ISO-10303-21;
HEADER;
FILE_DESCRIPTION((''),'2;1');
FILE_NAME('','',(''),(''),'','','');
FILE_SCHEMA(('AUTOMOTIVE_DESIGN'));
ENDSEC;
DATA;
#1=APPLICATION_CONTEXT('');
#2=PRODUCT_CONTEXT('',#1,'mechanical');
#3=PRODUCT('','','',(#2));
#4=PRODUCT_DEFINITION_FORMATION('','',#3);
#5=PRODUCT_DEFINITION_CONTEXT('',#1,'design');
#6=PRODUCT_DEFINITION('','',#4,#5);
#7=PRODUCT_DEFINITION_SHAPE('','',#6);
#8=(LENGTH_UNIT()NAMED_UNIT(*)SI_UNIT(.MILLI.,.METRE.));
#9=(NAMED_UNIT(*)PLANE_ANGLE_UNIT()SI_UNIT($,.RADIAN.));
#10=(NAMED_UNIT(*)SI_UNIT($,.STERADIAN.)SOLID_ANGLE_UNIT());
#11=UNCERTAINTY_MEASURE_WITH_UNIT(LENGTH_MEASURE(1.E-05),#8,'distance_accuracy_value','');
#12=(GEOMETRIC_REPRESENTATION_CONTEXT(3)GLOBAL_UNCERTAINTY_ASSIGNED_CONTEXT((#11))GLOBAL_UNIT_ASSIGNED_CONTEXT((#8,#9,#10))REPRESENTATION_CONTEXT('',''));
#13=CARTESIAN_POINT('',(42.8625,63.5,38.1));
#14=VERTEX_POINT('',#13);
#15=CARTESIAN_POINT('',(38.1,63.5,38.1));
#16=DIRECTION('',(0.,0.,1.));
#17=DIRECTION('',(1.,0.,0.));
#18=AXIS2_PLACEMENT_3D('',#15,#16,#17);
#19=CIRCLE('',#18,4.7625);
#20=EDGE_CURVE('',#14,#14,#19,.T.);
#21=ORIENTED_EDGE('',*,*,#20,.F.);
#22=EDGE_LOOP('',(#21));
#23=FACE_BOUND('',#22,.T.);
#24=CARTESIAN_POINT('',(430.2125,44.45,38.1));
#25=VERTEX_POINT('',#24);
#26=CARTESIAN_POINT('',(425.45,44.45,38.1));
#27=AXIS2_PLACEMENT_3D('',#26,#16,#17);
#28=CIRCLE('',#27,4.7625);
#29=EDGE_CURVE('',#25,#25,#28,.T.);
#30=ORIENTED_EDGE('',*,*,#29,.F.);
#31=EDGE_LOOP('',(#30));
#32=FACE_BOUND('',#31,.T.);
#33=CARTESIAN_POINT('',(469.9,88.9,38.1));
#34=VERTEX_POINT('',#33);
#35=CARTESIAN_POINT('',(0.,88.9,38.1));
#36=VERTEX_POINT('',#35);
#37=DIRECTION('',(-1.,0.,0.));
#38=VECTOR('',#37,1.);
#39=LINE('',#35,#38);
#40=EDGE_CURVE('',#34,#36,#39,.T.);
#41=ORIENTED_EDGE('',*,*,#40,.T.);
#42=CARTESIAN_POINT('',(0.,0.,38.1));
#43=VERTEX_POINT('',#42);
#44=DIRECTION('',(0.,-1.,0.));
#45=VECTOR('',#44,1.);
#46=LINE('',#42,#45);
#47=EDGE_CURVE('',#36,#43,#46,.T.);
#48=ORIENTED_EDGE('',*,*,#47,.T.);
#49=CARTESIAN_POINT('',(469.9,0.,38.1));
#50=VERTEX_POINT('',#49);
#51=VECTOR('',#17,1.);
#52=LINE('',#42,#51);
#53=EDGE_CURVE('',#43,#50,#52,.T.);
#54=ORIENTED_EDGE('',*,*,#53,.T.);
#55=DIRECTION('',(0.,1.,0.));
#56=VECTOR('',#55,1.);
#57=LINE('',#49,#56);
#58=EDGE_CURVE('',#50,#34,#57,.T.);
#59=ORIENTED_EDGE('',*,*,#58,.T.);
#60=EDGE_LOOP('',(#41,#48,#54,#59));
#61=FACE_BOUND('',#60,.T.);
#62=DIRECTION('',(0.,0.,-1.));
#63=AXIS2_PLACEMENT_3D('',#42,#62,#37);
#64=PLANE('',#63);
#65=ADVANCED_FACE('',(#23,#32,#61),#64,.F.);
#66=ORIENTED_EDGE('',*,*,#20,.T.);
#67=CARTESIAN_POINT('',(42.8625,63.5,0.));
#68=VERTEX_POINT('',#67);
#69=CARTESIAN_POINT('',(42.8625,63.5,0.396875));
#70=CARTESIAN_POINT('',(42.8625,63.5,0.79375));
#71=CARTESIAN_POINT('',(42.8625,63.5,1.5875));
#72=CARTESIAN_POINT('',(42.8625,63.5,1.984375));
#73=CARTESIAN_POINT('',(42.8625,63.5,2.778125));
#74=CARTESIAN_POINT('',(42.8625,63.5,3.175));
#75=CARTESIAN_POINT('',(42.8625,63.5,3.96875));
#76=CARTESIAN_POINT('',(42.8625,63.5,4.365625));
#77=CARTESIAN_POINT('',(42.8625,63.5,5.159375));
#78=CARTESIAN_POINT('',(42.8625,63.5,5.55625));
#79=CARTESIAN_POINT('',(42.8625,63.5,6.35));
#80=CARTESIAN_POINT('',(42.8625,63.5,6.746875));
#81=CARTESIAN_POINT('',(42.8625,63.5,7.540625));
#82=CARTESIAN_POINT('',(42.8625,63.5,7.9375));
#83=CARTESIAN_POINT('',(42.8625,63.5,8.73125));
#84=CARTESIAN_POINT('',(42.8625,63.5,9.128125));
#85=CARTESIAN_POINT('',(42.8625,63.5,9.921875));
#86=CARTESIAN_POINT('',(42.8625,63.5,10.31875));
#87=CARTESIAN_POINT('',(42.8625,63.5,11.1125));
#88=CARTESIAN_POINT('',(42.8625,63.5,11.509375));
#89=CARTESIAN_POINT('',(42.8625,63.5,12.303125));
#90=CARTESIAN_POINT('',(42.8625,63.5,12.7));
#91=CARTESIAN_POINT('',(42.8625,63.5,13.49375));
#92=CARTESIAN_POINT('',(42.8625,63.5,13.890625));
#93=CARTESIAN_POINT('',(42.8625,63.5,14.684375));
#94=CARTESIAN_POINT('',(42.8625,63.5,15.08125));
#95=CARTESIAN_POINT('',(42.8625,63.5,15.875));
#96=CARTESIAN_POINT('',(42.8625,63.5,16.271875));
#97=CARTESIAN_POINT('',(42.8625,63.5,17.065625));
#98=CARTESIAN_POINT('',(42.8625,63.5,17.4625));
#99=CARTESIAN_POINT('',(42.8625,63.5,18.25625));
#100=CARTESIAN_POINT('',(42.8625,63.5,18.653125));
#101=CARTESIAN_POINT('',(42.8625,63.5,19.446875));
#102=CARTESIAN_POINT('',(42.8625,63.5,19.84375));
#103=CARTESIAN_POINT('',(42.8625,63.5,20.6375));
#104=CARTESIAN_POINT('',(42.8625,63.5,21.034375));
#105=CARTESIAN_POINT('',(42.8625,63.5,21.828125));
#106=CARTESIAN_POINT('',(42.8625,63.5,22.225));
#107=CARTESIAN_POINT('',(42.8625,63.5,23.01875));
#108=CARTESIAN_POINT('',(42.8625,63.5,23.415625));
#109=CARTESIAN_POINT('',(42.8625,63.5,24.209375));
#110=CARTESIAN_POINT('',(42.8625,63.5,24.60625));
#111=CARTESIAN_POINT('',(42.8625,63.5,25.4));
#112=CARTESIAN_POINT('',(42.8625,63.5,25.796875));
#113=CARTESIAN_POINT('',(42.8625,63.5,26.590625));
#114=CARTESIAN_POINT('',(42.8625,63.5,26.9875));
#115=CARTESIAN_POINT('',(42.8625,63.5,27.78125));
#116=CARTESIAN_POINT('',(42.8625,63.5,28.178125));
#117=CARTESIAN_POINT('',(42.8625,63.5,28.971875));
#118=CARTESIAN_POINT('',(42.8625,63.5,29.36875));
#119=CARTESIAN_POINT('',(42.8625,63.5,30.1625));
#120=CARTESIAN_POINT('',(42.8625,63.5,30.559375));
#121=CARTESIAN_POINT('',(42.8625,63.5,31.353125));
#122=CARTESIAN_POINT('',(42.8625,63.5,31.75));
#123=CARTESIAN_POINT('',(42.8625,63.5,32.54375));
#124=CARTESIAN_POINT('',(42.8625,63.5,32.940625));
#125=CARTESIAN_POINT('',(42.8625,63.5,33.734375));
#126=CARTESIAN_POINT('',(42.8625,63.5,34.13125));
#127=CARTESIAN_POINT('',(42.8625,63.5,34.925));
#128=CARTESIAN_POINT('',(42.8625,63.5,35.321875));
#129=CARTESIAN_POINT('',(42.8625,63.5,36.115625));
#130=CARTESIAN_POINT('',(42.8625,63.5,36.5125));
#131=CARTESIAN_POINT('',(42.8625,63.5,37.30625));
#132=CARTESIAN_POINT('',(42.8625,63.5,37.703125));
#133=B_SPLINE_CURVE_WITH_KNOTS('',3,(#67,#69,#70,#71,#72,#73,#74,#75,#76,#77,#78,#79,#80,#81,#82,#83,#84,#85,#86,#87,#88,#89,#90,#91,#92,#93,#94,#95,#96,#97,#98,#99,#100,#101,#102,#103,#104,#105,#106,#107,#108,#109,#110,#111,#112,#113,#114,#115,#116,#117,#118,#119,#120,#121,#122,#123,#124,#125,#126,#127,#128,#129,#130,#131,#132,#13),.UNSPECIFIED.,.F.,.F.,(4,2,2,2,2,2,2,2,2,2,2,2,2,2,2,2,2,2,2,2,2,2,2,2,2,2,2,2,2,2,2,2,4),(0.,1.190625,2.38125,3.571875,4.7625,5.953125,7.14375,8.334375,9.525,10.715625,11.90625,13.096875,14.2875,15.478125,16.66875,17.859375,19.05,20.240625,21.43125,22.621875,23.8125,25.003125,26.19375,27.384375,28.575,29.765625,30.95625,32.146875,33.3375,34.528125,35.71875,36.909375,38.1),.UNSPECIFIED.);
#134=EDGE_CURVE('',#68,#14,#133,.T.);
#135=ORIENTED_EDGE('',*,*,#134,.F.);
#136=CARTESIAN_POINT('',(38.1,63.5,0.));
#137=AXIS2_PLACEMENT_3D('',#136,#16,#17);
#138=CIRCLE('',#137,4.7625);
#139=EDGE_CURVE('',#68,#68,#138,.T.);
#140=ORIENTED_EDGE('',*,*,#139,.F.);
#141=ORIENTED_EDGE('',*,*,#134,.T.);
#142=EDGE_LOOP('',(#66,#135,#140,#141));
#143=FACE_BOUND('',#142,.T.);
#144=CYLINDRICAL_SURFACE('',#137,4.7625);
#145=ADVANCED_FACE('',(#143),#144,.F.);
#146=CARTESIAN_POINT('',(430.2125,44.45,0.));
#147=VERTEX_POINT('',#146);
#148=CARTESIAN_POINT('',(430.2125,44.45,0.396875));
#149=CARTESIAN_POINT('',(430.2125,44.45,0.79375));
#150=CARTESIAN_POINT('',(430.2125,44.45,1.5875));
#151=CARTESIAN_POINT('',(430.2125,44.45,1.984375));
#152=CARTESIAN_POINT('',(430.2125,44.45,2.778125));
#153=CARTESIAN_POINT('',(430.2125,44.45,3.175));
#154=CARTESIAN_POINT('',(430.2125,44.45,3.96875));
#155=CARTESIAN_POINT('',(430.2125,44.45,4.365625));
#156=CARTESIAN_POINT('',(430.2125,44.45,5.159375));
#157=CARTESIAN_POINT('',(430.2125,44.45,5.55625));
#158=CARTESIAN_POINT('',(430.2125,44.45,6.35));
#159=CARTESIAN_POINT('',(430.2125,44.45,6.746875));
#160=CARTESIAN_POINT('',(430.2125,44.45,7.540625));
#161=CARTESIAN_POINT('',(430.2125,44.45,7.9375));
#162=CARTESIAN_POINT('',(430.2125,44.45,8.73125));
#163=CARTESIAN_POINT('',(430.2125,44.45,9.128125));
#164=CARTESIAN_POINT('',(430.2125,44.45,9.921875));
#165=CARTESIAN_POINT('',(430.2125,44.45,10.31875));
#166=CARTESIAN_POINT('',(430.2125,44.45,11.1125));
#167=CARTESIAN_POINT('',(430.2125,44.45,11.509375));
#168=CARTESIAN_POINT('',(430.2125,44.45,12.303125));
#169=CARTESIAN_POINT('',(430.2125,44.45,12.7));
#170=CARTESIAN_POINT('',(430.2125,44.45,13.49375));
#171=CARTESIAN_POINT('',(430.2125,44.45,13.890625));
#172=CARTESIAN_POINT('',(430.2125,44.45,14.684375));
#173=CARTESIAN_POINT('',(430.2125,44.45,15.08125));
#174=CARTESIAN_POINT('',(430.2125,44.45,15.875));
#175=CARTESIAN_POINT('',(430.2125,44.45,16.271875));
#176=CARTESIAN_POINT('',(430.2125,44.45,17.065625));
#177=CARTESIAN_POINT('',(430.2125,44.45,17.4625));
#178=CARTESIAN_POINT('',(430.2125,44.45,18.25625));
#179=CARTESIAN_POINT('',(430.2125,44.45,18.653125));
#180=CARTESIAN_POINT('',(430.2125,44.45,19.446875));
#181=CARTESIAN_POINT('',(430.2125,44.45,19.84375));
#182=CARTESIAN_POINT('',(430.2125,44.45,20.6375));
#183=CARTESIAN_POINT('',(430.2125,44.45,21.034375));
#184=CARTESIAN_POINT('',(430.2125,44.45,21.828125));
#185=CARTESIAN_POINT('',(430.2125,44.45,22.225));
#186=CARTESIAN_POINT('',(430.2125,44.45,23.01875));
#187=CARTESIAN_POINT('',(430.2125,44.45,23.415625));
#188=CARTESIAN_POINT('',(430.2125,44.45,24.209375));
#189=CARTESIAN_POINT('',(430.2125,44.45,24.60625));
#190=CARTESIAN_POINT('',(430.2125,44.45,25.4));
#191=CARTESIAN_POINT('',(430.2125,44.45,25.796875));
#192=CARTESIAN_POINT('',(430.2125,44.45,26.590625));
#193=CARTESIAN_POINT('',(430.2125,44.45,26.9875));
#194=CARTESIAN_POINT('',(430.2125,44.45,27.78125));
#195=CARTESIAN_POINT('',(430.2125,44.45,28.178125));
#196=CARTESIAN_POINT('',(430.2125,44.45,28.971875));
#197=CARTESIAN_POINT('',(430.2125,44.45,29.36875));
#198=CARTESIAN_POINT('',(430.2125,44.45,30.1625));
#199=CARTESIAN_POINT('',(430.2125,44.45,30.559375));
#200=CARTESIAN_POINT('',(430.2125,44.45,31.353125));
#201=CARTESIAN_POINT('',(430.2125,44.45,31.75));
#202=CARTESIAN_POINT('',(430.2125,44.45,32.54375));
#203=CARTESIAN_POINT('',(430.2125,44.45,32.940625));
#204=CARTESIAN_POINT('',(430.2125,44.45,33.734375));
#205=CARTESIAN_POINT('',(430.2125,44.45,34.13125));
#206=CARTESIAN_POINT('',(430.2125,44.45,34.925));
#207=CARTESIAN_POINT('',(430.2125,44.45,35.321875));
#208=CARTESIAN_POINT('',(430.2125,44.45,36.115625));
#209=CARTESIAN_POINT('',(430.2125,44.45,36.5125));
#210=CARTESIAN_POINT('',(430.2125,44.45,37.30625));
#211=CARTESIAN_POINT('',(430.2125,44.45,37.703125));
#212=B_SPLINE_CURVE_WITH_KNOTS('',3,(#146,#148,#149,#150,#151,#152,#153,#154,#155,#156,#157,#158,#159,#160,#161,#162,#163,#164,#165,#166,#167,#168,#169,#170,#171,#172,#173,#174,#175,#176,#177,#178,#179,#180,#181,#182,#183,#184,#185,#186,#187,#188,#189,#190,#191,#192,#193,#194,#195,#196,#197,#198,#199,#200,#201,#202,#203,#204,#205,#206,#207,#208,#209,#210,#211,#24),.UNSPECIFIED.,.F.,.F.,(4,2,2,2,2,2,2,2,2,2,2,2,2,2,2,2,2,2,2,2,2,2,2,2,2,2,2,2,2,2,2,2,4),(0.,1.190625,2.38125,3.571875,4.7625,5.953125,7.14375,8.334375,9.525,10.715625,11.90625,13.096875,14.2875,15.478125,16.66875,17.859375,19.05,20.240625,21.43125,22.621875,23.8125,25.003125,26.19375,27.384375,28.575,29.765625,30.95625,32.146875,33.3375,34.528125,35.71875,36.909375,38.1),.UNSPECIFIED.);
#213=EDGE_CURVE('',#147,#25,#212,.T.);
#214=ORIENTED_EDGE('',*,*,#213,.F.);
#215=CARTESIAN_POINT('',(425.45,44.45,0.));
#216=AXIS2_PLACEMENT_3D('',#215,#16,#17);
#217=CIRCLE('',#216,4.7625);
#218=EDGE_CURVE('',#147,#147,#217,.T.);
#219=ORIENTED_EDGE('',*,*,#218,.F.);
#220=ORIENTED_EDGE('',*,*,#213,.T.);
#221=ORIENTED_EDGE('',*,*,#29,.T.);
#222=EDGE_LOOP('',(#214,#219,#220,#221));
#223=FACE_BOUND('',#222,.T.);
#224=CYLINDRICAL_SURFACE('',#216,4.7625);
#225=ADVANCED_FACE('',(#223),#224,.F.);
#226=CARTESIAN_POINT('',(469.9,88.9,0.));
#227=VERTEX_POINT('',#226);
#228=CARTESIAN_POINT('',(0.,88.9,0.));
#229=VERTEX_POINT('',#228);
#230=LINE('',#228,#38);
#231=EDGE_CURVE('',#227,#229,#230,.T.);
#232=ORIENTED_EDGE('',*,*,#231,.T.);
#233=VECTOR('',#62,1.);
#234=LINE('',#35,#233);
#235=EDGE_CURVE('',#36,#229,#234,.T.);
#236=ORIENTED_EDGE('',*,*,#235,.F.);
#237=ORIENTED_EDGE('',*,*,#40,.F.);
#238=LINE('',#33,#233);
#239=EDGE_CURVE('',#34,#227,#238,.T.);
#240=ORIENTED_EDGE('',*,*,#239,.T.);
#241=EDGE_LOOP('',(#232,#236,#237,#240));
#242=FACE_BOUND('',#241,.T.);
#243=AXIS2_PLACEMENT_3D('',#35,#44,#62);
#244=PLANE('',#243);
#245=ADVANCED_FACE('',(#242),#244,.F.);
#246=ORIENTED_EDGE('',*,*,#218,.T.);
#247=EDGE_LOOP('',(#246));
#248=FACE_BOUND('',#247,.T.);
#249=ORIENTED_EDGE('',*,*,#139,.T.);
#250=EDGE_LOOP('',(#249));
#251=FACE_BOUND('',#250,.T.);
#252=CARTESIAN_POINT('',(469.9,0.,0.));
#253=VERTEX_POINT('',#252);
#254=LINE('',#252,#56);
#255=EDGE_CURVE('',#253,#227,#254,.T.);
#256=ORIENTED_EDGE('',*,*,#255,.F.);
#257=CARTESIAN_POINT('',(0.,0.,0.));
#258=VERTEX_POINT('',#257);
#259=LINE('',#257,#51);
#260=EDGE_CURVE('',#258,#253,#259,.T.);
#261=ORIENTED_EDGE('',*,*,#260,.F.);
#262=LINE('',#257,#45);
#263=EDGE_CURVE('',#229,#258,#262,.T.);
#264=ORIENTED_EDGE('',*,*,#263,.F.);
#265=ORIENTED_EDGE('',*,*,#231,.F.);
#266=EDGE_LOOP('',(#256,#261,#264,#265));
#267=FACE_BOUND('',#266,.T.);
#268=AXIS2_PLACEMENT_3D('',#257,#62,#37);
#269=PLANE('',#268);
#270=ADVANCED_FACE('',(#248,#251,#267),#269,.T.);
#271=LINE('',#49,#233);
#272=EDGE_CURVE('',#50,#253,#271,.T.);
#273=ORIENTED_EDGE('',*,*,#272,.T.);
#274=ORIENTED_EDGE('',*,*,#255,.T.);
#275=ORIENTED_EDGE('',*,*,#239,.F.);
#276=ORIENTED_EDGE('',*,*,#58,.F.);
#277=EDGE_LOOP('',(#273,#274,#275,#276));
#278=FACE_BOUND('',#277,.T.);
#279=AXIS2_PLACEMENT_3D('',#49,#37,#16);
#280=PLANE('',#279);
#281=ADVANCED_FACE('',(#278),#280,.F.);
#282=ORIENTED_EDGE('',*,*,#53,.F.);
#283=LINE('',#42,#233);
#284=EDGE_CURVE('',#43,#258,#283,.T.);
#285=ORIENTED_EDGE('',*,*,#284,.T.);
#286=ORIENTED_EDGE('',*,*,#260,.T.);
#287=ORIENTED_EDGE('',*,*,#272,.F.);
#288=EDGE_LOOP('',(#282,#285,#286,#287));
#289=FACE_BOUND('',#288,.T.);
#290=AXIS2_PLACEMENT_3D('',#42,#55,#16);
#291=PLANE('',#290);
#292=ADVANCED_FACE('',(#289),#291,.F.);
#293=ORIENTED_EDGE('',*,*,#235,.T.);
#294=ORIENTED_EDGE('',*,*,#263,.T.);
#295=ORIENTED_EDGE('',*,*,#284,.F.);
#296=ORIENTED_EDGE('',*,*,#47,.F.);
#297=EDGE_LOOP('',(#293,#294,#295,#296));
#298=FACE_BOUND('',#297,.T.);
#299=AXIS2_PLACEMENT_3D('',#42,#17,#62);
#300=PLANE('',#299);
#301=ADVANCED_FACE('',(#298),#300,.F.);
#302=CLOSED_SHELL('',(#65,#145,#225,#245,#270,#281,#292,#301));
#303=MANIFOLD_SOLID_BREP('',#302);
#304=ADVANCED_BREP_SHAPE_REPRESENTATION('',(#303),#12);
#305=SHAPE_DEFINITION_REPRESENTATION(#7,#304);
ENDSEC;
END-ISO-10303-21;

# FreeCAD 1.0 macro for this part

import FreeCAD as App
import Part
import Sketcher
Q = App.Units.Quantity

doc = App.newDocument("Part")
body = doc.addObject("PartDesign::Body", "Body")

# Sketch on XY plane
sketch1 = body.newObject("Sketcher::SketchObject", "Sketch")
sketch1.AttachmentSupport = (doc.getObject("XY_Plane"), [""])
sketch1.MapMode = "FlatFace"
sketch1.addGeometry([
    Part.LineSegment(App.Vector(0, 89, 0), App.Vector(0, 0, 0)),
    Part.LineSegment(App.Vector(0, 0, 0), App.Vector(470, 0, 0)),
    Part.LineSegment(App.Vector(470, 0, 0), App.Vector(470, 89, 0)),
    Part.LineSegment(App.Vector(470, 89, 0), App.Vector(0, 89, 0)),
], False)
sketch1.addConstraint([
    Sketcher.Constraint("Coincident", 0, 2, 1, 1),
    Sketcher.Constraint("Coincident", 1, 2, 2, 1),
    Sketcher.Constraint("Coincident", 2, 2, 3, 1),
    Sketcher.Constraint("Coincident", 3, 2, 0, 1),
    Sketcher.Constraint("Vertical", 0),
    Sketcher.Constraint("Horizontal", 1),
    Sketcher.Constraint("Vertical", 2),
    Sketcher.Constraint("Horizontal", 3),
    Sketcher.Constraint("Coincident", 0, 2, -1, 1),
    Sketcher.Constraint("DistanceX", 1, 1, 1, 2, Q("18.5 in")),
    Sketcher.Constraint("DistanceY", 0, 2, 0, 1, Q("3.5 in")),
])
pad1 = body.newObject("PartDesign::Pad", "Pad")
pad1.Profile = sketch1
pad1.Length = Q("1.5 in")

# Sketch on XY plane
sketch2 = body.newObject("Sketcher::SketchObject", "Sketch001")
sketch2.AttachmentSupport = (doc.getObject("XY_Plane"), [""])
sketch2.MapMode = "FlatFace"
sketch2.AttachmentOffset = App.Placement(App.Vector(0, 0, 1.5 * 25.4), App.Rotation())
sketch2.addGeometry(Part.Circle(App.Vector(425.4, 44.5, 0), App.Vector(0, 0, 1), 4.8), False)
sketch2.addConstraint([
    Sketcher.Constraint("Diameter", 0, Q("0.375 in")),
    Sketcher.Constraint("DistanceX", -1, 1, 0, 3, Q("16.75 in")),
    Sketcher.Constraint("DistanceY", -1, 1, 0, 3, Q("1.75 in")),
])
pocket1 = body.newObject("PartDesign::Pocket", "Pocket")
pocket1.Profile = sketch2
pocket1.Type = "ThroughAll"

# Sketch on XY plane
sketch3 = body.newObject("Sketcher::SketchObject", "Sketch002")
sketch3.AttachmentSupport = (doc.getObject("XY_Plane"), [""])
sketch3.MapMode = "FlatFace"
sketch3.AttachmentOffset = App.Placement(App.Vector(0, 0, 1.5 * 25.4), App.Rotation())
sketch3.addGeometry(Part.Circle(App.Vector(38.1, 63.5, 0), App.Vector(0, 0, 1), 4.8), False)
sketch3.addConstraint([
    Sketcher.Constraint("Diameter", 0, Q("0.375 in")),
    Sketcher.Constraint("DistanceX", -1, 1, 0, 3, Q("1.5 in")),
    Sketcher.Constraint("DistanceY", -1, 1, 0, 3, Q("2.5 in")),
])
pocket2 = body.newObject("PartDesign::Pocket", "Pocket001")
pocket2.Profile = sketch3
pocket2.Type = "ThroughAll"

doc.recompute()
